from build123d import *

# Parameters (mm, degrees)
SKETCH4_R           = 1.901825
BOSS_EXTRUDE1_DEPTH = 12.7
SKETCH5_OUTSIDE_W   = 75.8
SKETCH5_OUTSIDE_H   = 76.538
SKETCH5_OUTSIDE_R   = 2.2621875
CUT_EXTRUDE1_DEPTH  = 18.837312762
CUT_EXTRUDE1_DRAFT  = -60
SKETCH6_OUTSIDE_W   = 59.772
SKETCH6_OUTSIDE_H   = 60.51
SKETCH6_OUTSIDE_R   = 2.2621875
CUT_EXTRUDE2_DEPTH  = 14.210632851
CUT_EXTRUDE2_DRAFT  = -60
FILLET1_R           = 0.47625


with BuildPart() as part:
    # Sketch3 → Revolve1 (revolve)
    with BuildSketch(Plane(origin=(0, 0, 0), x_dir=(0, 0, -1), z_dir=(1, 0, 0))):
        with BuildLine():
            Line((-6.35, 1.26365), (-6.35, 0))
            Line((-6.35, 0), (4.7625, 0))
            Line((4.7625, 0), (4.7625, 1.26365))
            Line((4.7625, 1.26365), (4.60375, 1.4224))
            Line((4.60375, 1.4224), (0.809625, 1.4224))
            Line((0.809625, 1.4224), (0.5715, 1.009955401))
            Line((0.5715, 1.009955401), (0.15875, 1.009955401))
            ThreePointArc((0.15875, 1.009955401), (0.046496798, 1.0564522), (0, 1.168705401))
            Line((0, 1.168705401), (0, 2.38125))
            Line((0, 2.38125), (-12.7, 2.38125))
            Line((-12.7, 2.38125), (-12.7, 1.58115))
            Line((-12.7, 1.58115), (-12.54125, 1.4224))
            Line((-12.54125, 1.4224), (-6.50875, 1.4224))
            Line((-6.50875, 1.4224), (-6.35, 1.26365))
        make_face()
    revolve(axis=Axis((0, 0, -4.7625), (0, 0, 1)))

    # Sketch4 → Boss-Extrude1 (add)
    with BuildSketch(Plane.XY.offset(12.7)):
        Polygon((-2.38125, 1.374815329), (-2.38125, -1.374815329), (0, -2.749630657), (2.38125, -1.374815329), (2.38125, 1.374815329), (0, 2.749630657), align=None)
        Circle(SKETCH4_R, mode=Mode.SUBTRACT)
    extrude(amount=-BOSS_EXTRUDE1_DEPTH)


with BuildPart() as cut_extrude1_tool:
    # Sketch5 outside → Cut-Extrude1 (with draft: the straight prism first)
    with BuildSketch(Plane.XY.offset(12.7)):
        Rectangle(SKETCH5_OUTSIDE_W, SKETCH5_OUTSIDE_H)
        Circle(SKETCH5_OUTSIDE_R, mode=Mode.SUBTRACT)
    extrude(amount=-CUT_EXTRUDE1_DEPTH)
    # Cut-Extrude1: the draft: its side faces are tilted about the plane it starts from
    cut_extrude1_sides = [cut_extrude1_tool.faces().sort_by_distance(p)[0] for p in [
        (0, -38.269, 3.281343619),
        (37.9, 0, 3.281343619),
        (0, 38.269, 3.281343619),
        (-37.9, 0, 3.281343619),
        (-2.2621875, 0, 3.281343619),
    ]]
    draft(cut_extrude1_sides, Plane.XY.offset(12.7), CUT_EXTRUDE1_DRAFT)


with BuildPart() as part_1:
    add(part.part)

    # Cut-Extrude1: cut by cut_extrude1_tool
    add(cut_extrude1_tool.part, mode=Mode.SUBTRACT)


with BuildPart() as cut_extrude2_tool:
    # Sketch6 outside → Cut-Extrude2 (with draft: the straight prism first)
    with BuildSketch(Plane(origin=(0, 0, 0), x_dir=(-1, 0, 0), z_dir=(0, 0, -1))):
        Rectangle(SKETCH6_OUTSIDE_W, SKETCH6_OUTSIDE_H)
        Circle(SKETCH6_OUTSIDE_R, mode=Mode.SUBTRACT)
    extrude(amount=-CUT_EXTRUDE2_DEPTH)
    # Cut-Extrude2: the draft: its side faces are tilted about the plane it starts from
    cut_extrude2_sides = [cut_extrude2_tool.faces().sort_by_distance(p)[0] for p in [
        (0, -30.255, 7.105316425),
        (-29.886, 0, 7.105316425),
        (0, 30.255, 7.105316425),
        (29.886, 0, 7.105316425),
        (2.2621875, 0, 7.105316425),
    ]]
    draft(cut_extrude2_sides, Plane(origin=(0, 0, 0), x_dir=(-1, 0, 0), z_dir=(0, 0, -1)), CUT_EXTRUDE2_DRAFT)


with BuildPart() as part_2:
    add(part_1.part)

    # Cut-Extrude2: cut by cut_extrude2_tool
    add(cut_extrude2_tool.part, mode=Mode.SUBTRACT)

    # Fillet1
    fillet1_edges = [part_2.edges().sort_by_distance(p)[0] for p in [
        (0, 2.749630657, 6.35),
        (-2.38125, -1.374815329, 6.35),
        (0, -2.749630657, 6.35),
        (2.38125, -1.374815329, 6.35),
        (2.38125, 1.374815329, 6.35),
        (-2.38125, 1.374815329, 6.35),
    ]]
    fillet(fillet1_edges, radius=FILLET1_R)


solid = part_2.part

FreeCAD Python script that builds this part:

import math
import FreeCAD as App
import Part
import Sketcher
Q = App.Units.Quantity


def edges_at(feature, points):
    """Names of the edges that pass closest to the given points."""
    edges = feature.Shape.Edges
    near = lambda p: min(range(len(edges)), key=lambda i: edges[i].distToShape(Part.Vertex(*p))[0])
    return sorted({f"Edge{near(p) + 1}" for p in points})


def faces_at(feature, points):
    """Names of the faces that lie closest to the given points."""
    faces = feature.Shape.Faces
    near = lambda p: min(range(len(faces)), key=lambda i: faces[i].distToShape(Part.Vertex(*p))[0])
    return sorted({f"Face{near(p) + 1}" for p in points})


def add_polygon(sketch, points):
    """Adds a closed chain of lines whose ends are joined by coincident constraints."""
    first, n = sketch.GeometryCount, len(points)
    for a, b in zip(points, points[1:] + points[:1]):
        sketch.addGeometry(Part.LineSegment(App.Vector(*a, 0), App.Vector(*b, 0)), False)
    for i in range(n):
        sketch.addConstraint(Sketcher.Constraint("Coincident", first + i, 2, first + (i + 1) % n, 1))

doc = App.newDocument("Part")
body = doc.addObject("PartDesign::Body", "Body")

sketch1 = body.newObject("Sketcher::SketchObject", "Sketch")
sketch1.AttachmentSupport = (doc.getObject("YZ_Plane"), [""])
sketch1.MapMode = "FlatFace"
sketch1.addGeometry([
    Part.LineSegment(App.Vector(1.26, 6.35, 0), App.Vector(0, 6.35, 0)),
    Part.LineSegment(App.Vector(0, 6.35, 0), App.Vector(0, -4.76, 0)),
    Part.LineSegment(App.Vector(0, -4.76, 0), App.Vector(1.26, -4.76, 0)),
    Part.LineSegment(App.Vector(1.26, -4.76, 0), App.Vector(1.42, -4.6, 0)),
    Part.LineSegment(App.Vector(1.42, -4.6, 0), App.Vector(1.42, -0.81, 0)),
    Part.LineSegment(App.Vector(1.42, -0.81, 0), App.Vector(1.01, -0.57, 0)),
    Part.LineSegment(App.Vector(1.01, -0.57, 0), App.Vector(1.01, -0.16, 0)),
    Part.ArcOfCircle(Part.Circle(App.Vector(1.17, -0.16, 0), App.Vector(0, 0, 1), 0.16), math.radians(90), math.radians(180)),
    Part.LineSegment(App.Vector(1.17, 0, 0), App.Vector(2.38, 0, 0)),
    Part.LineSegment(App.Vector(2.38, 0, 0), App.Vector(2.38, 12.7, 0)),
    Part.LineSegment(App.Vector(2.38, 12.7, 0), App.Vector(1.58, 12.7, 0)),
    Part.LineSegment(App.Vector(1.58, 12.7, 0), App.Vector(1.42, 12.54, 0)),
    Part.LineSegment(App.Vector(1.42, 12.54, 0), App.Vector(1.42, 6.51, 0)),
    Part.LineSegment(App.Vector(1.42, 6.51, 0), App.Vector(1.26, 6.35, 0)),
], False)
sketch1.addConstraint([
    Sketcher.Constraint("Coincident", 0, 2, 1, 1),
    Sketcher.Constraint("Coincident", 1, 2, 2, 1),
    Sketcher.Constraint("Coincident", 2, 2, 3, 1),
    Sketcher.Constraint("Coincident", 3, 2, 4, 1),
    Sketcher.Constraint("Coincident", 4, 2, 5, 1),
    Sketcher.Constraint("Coincident", 5, 2, 6, 1),
    Sketcher.Constraint("Tangent", 6, 2, 7, 2),
    Sketcher.Constraint("Tangent", 7, 1, 8, 1),
    Sketcher.Constraint("Coincident", 8, 2, 9, 1),
    Sketcher.Constraint("Coincident", 9, 2, 10, 1),
    Sketcher.Constraint("Coincident", 10, 2, 11, 1),
    Sketcher.Constraint("Coincident", 11, 2, 12, 1),
    Sketcher.Constraint("Coincident", 12, 2, 13, 1),
    Sketcher.Constraint("Coincident", 13, 2, 0, 1),
    Sketcher.Constraint("Horizontal", 0),
    Sketcher.Constraint("Vertical", 1),
    Sketcher.Constraint("Horizontal", 2),
    Sketcher.Constraint("Vertical", 4),
    Sketcher.Constraint("Vertical", 6),
    Sketcher.Constraint("Horizontal", 8),
    Sketcher.Constraint("Vertical", 9),
    Sketcher.Constraint("Horizontal", 10),
    Sketcher.Constraint("Vertical", 12),
    Sketcher.Constraint("PointOnObject", 0, 2, -2),
    Sketcher.Constraint("PointOnObject", 7, 1, -1),
    Sketcher.Constraint("Parallel", 3, 11),
    Sketcher.Constraint("Parallel", 11, 13),
    Sketcher.Constraint("Vertical", 4, 2, 11, 2),
    Sketcher.Constraint("Vertical", 2, 2, 13, 2),
    Sketcher.Constraint("Equal", 3, 11),
    Sketcher.Constraint("DistanceY", 9, 1, 9, 2, Q("0.5 in")),
    Sketcher.Constraint("Angle", 3, Q("45 deg")),
    Sketcher.Constraint("Angle", 5, Q("150 deg")),
    Sketcher.Constraint("DistanceY", 1, 2, 1, 1, Q("0.4375 in")),
    Sketcher.Constraint("DistanceY", -1, 1, 0, 2, Q("0.25 in")),
    Sketcher.Constraint("DistanceX", 10, 2, 10, 1, Q("0.0315 in")),
    Sketcher.Constraint("DistanceY", 12, 2, 12, 1, Q("0.2375 in")),
    Sketcher.Constraint("DistanceX", -1, 1, 3, 2, Q("0.056 in")),
    Sketcher.Constraint("Radius", 7, Q("0.15875 mm")),
    Sketcher.Constraint("DistanceY", 2, 2, 5, 2, Q("0.165 in")),
    Sketcher.Constraint("Distance", 5, Q("0.47625 mm")),
])
revolution = body.newObject("PartDesign::Revolution", "Revolution")
revolution.Profile = sketch1
revolution.ReferenceAxis = (sketch1, ["V_Axis"])
revolution.Angle = 360

sketch2 = body.newObject("Sketcher::SketchObject", "Sketch001")
sketch2.AttachmentSupport = (doc.getObject("XY_Plane"), [""])
sketch2.MapMode = "FlatFace"
sketch2.AttachmentOffset = App.Placement(App.Vector(0, 0, 0.5 * 25.4), App.Rotation())
add_polygon(sketch2, [(-2.4, 1.4), (-2.4, -1.4), (0, -2.7), (2.4, -1.4), (2.4, 1.4), (0, 2.7)])
sketch2.addGeometry(Part.Circle(App.Vector(0, 0, 0), App.Vector(0, 0, 1), 1.9), False)
sketch2.addConstraint([
    Sketcher.Constraint("Vertical", 0),
    Sketcher.Constraint("Vertical", 3),
    Sketcher.Constraint("Coincident", 6, 3, -1, 1),
    Sketcher.Constraint("Symmetric", 0, 2, 3, 2, -1, 1),
    Sketcher.Constraint("Symmetric", 1, 2, 4, 2, -1, 1),
    Sketcher.Constraint("PointOnObject", 1, 2, -2),
    Sketcher.Constraint("Parallel", 2, 5),
    Sketcher.Constraint("Horizontal", 0, 2, 2, 2),
    Sketcher.Constraint("Angle", 1, Q("-30 deg")),
    Sketcher.Constraint("Diameter", 6, Q("3.80365 mm")),
    Sketcher.Constraint("DistanceX", 0, 2, -1, 1, Q("0.09375 in")),
    Sketcher.Constraint("DistanceY", 0, 2, 0, 1, Q("2.749631 mm")),
])
pad1 = body.newObject("PartDesign::Pad", "Pad")
pad1.Profile = sketch2
pad1.Length = Q("0.5 in")
pad1.Reversed = True
body2 = doc.addObject("PartDesign::Body", "Body001")

sketch3 = body2.newObject("Sketcher::SketchObject", "Sketch002")
sketch3.AttachmentSupport = (doc.getObject("XY_Plane001"), [""])
sketch3.MapMode = "FlatFace"
sketch3.AttachmentOffset = App.Placement(App.Vector(0, 0, 0.5 * 25.4), App.Rotation())
add_polygon(sketch3, [(-37.9, 38.3), (-37.9, -38.3), (37.9, -38.3), (37.9, 38.3)])
sketch3.addGeometry(Part.Circle(App.Vector(0, 0, 0), App.Vector(0, 0, 1), 2.3), False)
sketch3.addConstraint([
    Sketcher.Constraint("Vertical", 0),
    Sketcher.Constraint("Horizontal", 1),
    Sketcher.Constraint("Vertical", 2),
    Sketcher.Constraint("Horizontal", 3),
    Sketcher.Constraint("Coincident", 4, 3, -1, 1),
    Sketcher.Constraint("Symmetric", 0, 2, 2, 2, -1, 1),
    Sketcher.Constraint("Diameter", 4, Q("4.524375 mm")),
    Sketcher.Constraint("DistanceX", 1, 1, 1, 2, Q("75.8 mm")),
    Sketcher.Constraint("DistanceY", 0, 2, 0, 1, Q("76.538 mm")),
])
pad2 = body2.newObject("PartDesign::Pad", "Pad001")
pad2.Profile = sketch3
pad2.Length = 18.837313
pad2.Reversed = True
doc.recompute()

datumplane = body2.newObject("PartDesign::Plane", "DatumPlane")
datumplane.AttachmentSupport = (doc.getObject("XY_Plane001"), [""])
datumplane.MapMode = "FlatFace"
datumplane.AttachmentOffset = App.Placement(App.Vector(0, 0, 0.5 * 25.4), App.Rotation())
draft = body2.newObject("PartDesign::Draft", "Draft")
draft.Base = (pad2, faces_at(pad2, [
    (0, -38.269, 3.281),
    (37.9, 0, 3.281),
    (0, 38.269, 3.281),
    (-37.9, 0, 3.281),
    (-2.262, 0, 3.281),
]))
draft.NeutralPlane = (datumplane, [""])
draft.Angle = 60
draft.Reversed = True
doc.recompute()

boolean = body.newObject("PartDesign::Boolean", "Boolean")
boolean.Type = "Cut"
boolean.addObjects([body2])
body3 = doc.addObject("PartDesign::Body", "Body002")

sketch4 = body3.newObject("Sketcher::SketchObject", "Sketch003")
sketch4.AttachmentSupport = (doc.getObject("XY_Plane002"), [""])
sketch4.MapMode = "FlatFace"
add_polygon(sketch4, [(29.9, 30.3), (29.9, -30.3), (-29.9, -30.3), (-29.9, 30.3)])
sketch4.addGeometry(Part.Circle(App.Vector(0, 0, 0), App.Vector(0, 0, 1), 2.3), False)
sketch4.addConstraint([
    Sketcher.Constraint("Vertical", 0),
    Sketcher.Constraint("Horizontal", 1),
    Sketcher.Constraint("Vertical", 2),
    Sketcher.Constraint("Horizontal", 3),
    Sketcher.Constraint("Coincident", 4, 3, -1, 1),
    Sketcher.Constraint("Symmetric", 0, 2, 2, 2, -1, 1),
    Sketcher.Constraint("Diameter", 4, Q("4.524375 mm")),
    Sketcher.Constraint("DistanceX", 1, 2, 1, 1, Q("59.772 mm")),
    Sketcher.Constraint("DistanceY", 0, 2, 0, 1, Q("60.51 mm")),
])
pad3 = body3.newObject("PartDesign::Pad", "Pad002")
pad3.Profile = sketch4
pad3.Length = 14.210633
doc.recompute()

draft2 = body3.newObject("PartDesign::Draft", "Draft001")
draft2.Base = (pad3, faces_at(pad3, [
    (0, -30.255, 7.105),
    (-29.886, 0, 7.105),
    (0, 30.255, 7.105),
    (29.886, 0, 7.105),
    (2.262, 0, 7.105),
]))
draft2.NeutralPlane = (doc.getObject("XY_Plane002"), [""])
draft2.Angle = 60
draft2.Reversed = False
doc.recompute()

boolean2 = body.newObject("PartDesign::Boolean", "Boolean001")
boolean2.Type = "Cut"
boolean2.addObjects([body3])
doc.recompute()

fillet = body.newObject("PartDesign::Fillet", "Fillet")
fillet.Base = (boolean2, edges_at(boolean2, [
    (0, 2.75, 6.35),
    (-2.381, -1.375, 6.35),
    (0, -2.75, 6.35),
    (2.381, -1.375, 6.35),
    (2.381, 1.375, 6.35),
    (-2.381, 1.375, 6.35),
]))
fillet.Radius = 0.47625

doc.recompute()
